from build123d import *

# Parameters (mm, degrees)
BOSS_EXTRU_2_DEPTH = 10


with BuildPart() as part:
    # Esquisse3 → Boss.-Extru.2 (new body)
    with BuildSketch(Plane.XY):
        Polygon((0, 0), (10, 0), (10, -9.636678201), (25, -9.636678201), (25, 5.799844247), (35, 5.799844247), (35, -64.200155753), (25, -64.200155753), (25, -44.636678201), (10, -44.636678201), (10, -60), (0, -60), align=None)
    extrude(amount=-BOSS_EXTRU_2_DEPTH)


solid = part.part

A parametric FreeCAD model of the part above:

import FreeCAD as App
import Part
import Sketcher

doc = App.newDocument("Part")
body = doc.addObject("PartDesign::Body", "Body")

# Sketch on XY plane
sketch1 = body.newObject("Sketcher::SketchObject", "Sketch")
sketch1.AttachmentSupport = (doc.getObject("XY_Plane"), [""])
sketch1.MapMode = "FlatFace"
sketch1.addGeometry([
    Part.LineSegment(App.Vector(10, 0, 0), App.Vector(0, 0, 0)),  # 0
    Part.LineSegment(App.Vector(0, 0, 0), App.Vector(0, -60, 0)),  # 1
    Part.LineSegment(App.Vector(0, -60, 0), App.Vector(10, -60, 0)),  # 2
    Part.LineSegment(App.Vector(10, -60, 0), App.Vector(10, -45, 0)),  # 3
    Part.LineSegment(App.Vector(10, -45, 0), App.Vector(25, -45, 0)),  # 4
    Part.LineSegment(App.Vector(25, -45, 0), App.Vector(25, -64, 0)),  # 5
    Part.LineSegment(App.Vector(25, -64, 0), App.Vector(35, -64, 0)),  # 6
    Part.LineSegment(App.Vector(35, -64, 0), App.Vector(35, 6, 0)),  # 7
    Part.LineSegment(App.Vector(35, 6, 0), App.Vector(25, 6, 0)),  # 8
    Part.LineSegment(App.Vector(25, 6, 0), App.Vector(25, -10, 0)),  # 9
    Part.LineSegment(App.Vector(25, -10, 0), App.Vector(10, -10, 0)),  # 10
    Part.LineSegment(App.Vector(10, -10, 0), App.Vector(10, 0, 0)),  # 11
], False)
sketch1.addConstraint([
    Sketcher.Constraint("Coincident", 0, 2, 1, 1),
    Sketcher.Constraint("Coincident", 1, 2, 2, 1),
    Sketcher.Constraint("Coincident", 2, 2, 3, 1),
    Sketcher.Constraint("Coincident", 3, 2, 4, 1),
    Sketcher.Constraint("Coincident", 4, 2, 5, 1),
    Sketcher.Constraint("Coincident", 5, 2, 6, 1),
    Sketcher.Constraint("Coincident", 6, 2, 7, 1),
    Sketcher.Constraint("Coincident", 7, 2, 8, 1),
    Sketcher.Constraint("Coincident", 8, 2, 9, 1),
    Sketcher.Constraint("Coincident", 9, 2, 10, 1),
    Sketcher.Constraint("Coincident", 10, 2, 11, 1),
    Sketcher.Constraint("Coincident", 11, 2, 0, 1),
    Sketcher.Constraint("Horizontal", 0),
    Sketcher.Constraint("Vertical", 1),
    Sketcher.Constraint("Horizontal", 2),
    Sketcher.Constraint("Vertical", 3),
    Sketcher.Constraint("Horizontal", 4),
    Sketcher.Constraint("Vertical", 5),
    Sketcher.Constraint("Horizontal", 6),
    Sketcher.Constraint("Vertical", 7),
    Sketcher.Constraint("Horizontal", 8),
    Sketcher.Constraint("Vertical", 9),
    Sketcher.Constraint("Horizontal", 10),
    Sketcher.Constraint("Vertical", 11),
    Sketcher.Constraint("Coincident", 0, 2, -1, 1),
    Sketcher.Constraint("Vertical", 5, 2, 8, 2),
    Sketcher.Constraint("Vertical", 3, 2, 10, 2),
    Sketcher.Constraint("Equal", 2, 6),
    Sketcher.Constraint("DistanceX", 0, 2, 0, 1, 10.0),
    Sketcher.Constraint("DistanceX", 4, 1, 4, 2, 15.0),
    Sketcher.Constraint("DistanceY", 1, 2, 1, 1, 60.0),
    Sketcher.Constraint("DistanceY", 7, 1, 7, 2, 70.0),
    Sketcher.Constraint("DistanceY", 4, 2, 9, 2, 35.0),
    Sketcher.Constraint("DistanceY", 3, 1, 3, 2, 15.363322),
    Sketcher.Constraint("DistanceY", 5, 2, 5, 1, 19.563478),
])
pad1 = body.newObject("PartDesign::Pad", "Pad")
pad1.Profile = sketch1
pad1.Length = 10
pad1.Reversed = True

doc.recompute()
